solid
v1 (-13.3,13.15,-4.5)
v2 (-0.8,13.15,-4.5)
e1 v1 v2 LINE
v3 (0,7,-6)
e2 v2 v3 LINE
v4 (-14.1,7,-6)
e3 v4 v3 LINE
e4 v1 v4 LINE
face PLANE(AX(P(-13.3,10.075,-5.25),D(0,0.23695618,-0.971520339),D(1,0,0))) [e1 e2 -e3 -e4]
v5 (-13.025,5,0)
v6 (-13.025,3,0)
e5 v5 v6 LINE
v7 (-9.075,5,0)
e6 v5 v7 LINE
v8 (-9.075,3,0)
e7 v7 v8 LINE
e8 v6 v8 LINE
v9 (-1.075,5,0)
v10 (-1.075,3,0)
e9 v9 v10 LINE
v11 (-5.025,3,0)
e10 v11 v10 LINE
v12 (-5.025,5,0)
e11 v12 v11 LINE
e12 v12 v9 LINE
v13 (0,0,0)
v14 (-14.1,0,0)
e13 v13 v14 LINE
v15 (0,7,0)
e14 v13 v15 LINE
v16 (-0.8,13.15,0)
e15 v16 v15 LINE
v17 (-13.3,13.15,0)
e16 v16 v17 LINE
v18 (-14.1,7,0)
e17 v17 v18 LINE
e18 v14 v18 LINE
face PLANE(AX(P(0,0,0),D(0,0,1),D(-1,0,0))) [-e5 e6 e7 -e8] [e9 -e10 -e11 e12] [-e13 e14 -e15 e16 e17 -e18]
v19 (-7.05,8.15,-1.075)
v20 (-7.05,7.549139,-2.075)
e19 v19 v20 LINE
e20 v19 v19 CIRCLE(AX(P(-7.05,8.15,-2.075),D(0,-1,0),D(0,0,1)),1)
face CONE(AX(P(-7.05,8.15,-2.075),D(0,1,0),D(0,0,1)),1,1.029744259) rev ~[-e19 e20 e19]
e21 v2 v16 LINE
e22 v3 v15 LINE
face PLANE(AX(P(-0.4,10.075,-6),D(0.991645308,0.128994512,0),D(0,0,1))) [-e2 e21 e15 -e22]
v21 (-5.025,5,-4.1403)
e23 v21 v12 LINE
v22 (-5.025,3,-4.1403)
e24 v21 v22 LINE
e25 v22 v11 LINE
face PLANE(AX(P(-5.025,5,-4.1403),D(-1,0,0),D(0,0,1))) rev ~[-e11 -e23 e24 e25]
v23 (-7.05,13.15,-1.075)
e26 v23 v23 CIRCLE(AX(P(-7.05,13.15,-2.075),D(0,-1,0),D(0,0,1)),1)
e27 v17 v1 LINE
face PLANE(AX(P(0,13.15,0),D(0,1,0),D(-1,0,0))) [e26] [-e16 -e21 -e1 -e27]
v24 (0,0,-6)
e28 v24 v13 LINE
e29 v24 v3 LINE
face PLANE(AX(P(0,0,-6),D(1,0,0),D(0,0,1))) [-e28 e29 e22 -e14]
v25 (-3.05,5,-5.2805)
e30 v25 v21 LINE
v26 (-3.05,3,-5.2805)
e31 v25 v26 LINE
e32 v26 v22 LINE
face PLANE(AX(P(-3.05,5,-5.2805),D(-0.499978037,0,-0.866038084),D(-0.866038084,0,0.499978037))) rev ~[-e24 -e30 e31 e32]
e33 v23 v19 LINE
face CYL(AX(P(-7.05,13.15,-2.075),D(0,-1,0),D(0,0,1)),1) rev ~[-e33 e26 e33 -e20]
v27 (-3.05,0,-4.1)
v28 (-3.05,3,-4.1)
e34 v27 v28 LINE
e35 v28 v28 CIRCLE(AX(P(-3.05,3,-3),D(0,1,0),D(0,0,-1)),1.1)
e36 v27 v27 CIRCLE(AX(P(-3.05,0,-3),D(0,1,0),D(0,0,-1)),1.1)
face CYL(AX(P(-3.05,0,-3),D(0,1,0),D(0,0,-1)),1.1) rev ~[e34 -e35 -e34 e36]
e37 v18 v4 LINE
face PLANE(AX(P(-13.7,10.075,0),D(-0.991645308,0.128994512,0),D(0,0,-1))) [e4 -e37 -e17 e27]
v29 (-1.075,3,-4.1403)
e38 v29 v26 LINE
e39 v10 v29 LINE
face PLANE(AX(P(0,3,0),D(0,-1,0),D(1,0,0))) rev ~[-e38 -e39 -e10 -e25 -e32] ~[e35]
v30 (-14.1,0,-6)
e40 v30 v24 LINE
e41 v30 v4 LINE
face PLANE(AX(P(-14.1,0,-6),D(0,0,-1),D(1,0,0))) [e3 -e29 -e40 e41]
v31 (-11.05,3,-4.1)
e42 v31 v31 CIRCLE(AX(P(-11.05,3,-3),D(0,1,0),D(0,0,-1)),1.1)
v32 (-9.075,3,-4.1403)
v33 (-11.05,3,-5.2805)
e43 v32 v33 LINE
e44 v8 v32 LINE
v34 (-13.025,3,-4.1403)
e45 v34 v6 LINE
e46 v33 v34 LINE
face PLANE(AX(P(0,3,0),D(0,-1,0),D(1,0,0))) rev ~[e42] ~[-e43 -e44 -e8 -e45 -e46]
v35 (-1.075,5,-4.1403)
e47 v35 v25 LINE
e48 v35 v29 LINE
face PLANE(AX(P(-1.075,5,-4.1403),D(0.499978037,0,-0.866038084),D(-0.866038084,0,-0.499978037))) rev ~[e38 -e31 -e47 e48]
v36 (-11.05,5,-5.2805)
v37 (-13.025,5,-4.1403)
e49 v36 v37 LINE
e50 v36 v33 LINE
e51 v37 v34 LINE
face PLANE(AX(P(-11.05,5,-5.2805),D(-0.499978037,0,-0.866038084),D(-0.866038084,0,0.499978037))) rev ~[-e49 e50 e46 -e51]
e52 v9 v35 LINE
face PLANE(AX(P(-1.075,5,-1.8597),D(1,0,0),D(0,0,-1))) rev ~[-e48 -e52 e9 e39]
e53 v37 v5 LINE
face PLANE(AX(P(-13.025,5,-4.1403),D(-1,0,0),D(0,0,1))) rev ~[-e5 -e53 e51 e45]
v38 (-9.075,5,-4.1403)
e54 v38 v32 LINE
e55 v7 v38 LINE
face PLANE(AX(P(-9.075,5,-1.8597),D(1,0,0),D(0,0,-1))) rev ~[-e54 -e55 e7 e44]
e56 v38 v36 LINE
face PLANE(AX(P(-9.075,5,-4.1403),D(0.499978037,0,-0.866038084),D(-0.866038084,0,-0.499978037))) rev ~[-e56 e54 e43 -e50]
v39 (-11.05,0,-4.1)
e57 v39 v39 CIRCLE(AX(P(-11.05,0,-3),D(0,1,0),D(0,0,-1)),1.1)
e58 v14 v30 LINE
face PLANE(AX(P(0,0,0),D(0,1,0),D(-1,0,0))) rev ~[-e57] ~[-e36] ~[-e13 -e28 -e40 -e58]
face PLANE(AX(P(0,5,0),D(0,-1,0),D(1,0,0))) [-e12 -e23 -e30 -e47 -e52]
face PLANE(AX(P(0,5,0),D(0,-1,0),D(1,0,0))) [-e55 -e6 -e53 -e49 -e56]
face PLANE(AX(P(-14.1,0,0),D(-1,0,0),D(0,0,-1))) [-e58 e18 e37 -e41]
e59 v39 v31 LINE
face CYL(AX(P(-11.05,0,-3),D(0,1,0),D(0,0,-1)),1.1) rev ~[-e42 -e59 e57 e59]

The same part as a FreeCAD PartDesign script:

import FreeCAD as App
import Part
import Sketcher


def edges_at(feature, points):
    """Names of the edges that pass closest to the given points."""
    edges = feature.Shape.Edges
    near = lambda p: min(range(len(edges)), key=lambda i: edges[i].distToShape(Part.Vertex(*p))[0])
    return sorted({f"Edge{near(p) + 1}" for p in points})

doc = App.newDocument("Part")
params = doc.addObject("Spreadsheet::Sheet", "Params")
for row, (alias, value) in enumerate([
    ("sketch1_height", "6 mm"),
    ("sketch1_width", "14.1 mm"),
    ("pad1_length", "13.15 mm"),
    ("sketch2_diameter", "2 mm"),
    ("hole_diameter", "2 mm"),
    ("hole_depth", "5 mm"),
    ("sketch3_diameter", "2.2 mm"),
    ("hole2_diameter", "2.2 mm"),
    ("hole2_depth", "5 mm"),
    ("sketch4_width", "3.95 mm"),
    ("pocket1_length", "2 mm"),
    ("chamfer_size", "0.8 mm"),
    ("chamfer_size2", "6.15 mm"),
    ("chamfer2_size", "0.8 mm"),
    ("chamfer2_size2", "6.15 mm"),
    ("chamfer3_size", "1.5 mm"),
    ("chamfer3_size2", "6.15 mm"),
], start=1):
    params.set(f"A{row}", alias)
    params.set(f"B{row}", "=" + value)
    params.setAlias(f"B{row}", alias)

body = doc.addObject("PartDesign::Body", "Body")

# Sketch on XZ plane
sketch1 = body.newObject("Sketcher::SketchObject", "Sketch")
sketch1.AttachmentSupport = (doc.getObject("XZ_Plane"), [""])
sketch1.MapMode = "FlatFace"
sketch1.addGeometry([
    Part.LineSegment(App.Vector(-14.1, 0, 0), App.Vector(0, 0, 0)),
    Part.LineSegment(App.Vector(0, 0, 0), App.Vector(0, -6, 0)),
    Part.LineSegment(App.Vector(0, -6, 0), App.Vector(-14.1, -6, 0)),
    Part.LineSegment(App.Vector(-14.1, -6, 0), App.Vector(-14.1, 0, 0)),
], False)
sketch1.addConstraint([
    Sketcher.Constraint("Coincident", 0, 2, 1, 1),
    Sketcher.Constraint("Coincident", 1, 2, 2, 1),
    Sketcher.Constraint("Coincident", 2, 2, 3, 1),
    Sketcher.Constraint("Coincident", 3, 2, 0, 1),
    Sketcher.Constraint("Horizontal", 0),
    Sketcher.Constraint("Vertical", 1),
    Sketcher.Constraint("Horizontal", 2),
    Sketcher.Constraint("Vertical", 3),
    Sketcher.Constraint("Coincident", 0, 2, -1, 1),
    Sketcher.Constraint("DistanceY", 1, 2, 1, 1, 6.0),
    Sketcher.Constraint("DistanceX", 0, 1, 0, 2, 14.1),
])
sketch1.setExpression("Constraints[9]", "Params.sketch1_height")
sketch1.setExpression("Constraints[10]", "Params.sketch1_width")
pad1 = body.newObject("PartDesign::Pad", "Pad")
pad1.Profile = sketch1
pad1.setExpression("Length", "Params.pad1_length")
pad1.Reversed = True

# Sketch on XZ plane
sketch2 = body.newObject("Sketcher::SketchObject", "Sketch001")
sketch2.AttachmentSupport = (doc.getObject("XZ_Plane"), [""])
sketch2.MapMode = "FlatFace"
sketch2.AttachmentOffset = App.Placement(App.Vector(0, 0, -13.15), App.Rotation())
sketch2.addGeometry(Part.Circle(App.Vector(-7.05, -2.075, 0), App.Vector(0, 0, 1), 1), False)
sketch2.addConstraint([
    Sketcher.Constraint("Diameter", 0, 2.0),
    Sketcher.Constraint("DistanceX", 0, 3, -1, 1, 7.05),
    Sketcher.Constraint("DistanceY", 0, 3, -1, 1, 2.075),
])
sketch2.setExpression("Constraints[0]", "Params.sketch2_diameter")
doc.recompute()
hole = body.newObject("PartDesign::Hole", "Hole")
hole.Profile = sketch2
hole.ThreadType = "None"
hole.setExpression("Diameter", "Params.hole_diameter")
hole.DepthType = "Dimension"
hole.setExpression("Depth", "Params.hole_depth")
hole.DrillPoint = "Angled"
hole.DrillPointAngle = 118
hole.Reversed = True

# Sketch on XZ plane
sketch3 = body.newObject("Sketcher::SketchObject", "Sketch002")
sketch3.AttachmentSupport = (doc.getObject("XZ_Plane"), [""])
sketch3.MapMode = "FlatFace"
sketch3.addGeometry([
    Part.Circle(App.Vector(-3.05, -3, 0), App.Vector(0, 0, 1), 1.1),
    Part.Circle(App.Vector(-11.05, -3, 0), App.Vector(0, 0, 1), 1.1),
], False)
sketch3.addConstraint([
    Sketcher.Constraint("Equal", 0, 1),
    Sketcher.Constraint("Horizontal", 0, 3, 1, 3),
    Sketcher.Constraint("Diameter", 0, 2.2),
    Sketcher.Constraint("DistanceY", 0, 3, -1, 1, 3.0),
    Sketcher.Constraint("DistanceX", 1, 3, 0, 3, 8.0),
    Sketcher.Constraint("DistanceX", 0, 3, -1, 1, 3.05),
])
sketch3.setExpression("Constraints[2]", "Params.sketch3_diameter")
doc.recompute()
hole2 = body.newObject("PartDesign::Hole", "Hole001")
hole2.Profile = sketch3
hole2.ThreadType = "None"
hole2.setExpression("Diameter", "Params.hole2_diameter")
hole2.DepthType = "Dimension"
hole2.setExpression("Depth", "Params.hole2_depth")
hole2.DrillPoint = "Flat"

# Sketch on XZ plane
sketch4 = body.newObject("Sketcher::SketchObject", "Sketch003")
sketch4.AttachmentSupport = (doc.getObject("XZ_Plane"), [""])
sketch4.MapMode = "FlatFace"
sketch4.AttachmentOffset = App.Placement(App.Vector(0, 0, -5), App.Rotation())
sketch4.addGeometry([
    Part.LineSegment(App.Vector(-5.025, -4.1403, 0), App.Vector(-3.05, -5.2805, 0)),  # 0
    Part.LineSegment(App.Vector(-3.05, -5.2805, 0), App.Vector(-1.075, -4.1403, 0)),  # 1
    Part.LineSegment(App.Vector(-1.075, -4.1403, 0), App.Vector(-1.075, 0, 0)),  # 2
    Part.LineSegment(App.Vector(-1.075, 0, 0), App.Vector(-5.025, 0, 0)),  # 3
    Part.LineSegment(App.Vector(-5.025, 0, 0), App.Vector(-5.025, -4.1403, 0)),  # 4
    Part.LineSegment(App.Vector(-9.075, -4.1403, 0), App.Vector(-9.075, 0, 0)),  # 5
    Part.LineSegment(App.Vector(-9.075, 0, 0), App.Vector(-13.025, 0, 0)),  # 6
    Part.LineSegment(App.Vector(-13.025, 0, 0), App.Vector(-13.025, -4.1403, 0)),  # 7
    Part.LineSegment(App.Vector(-13.025, -4.1403, 0), App.Vector(-11.05, -5.2805, 0)),  # 8
    Part.LineSegment(App.Vector(-11.05, -5.2805, 0), App.Vector(-9.075, -4.1403, 0)),  # 9
], False)
sketch4.addConstraint([
    Sketcher.Constraint("Coincident", 0, 2, 1, 1),
    Sketcher.Constraint("Coincident", 1, 2, 2, 1),
    Sketcher.Constraint("Coincident", 2, 2, 3, 1),
    Sketcher.Constraint("Coincident", 3, 2, 4, 1),
    Sketcher.Constraint("Coincident", 4, 2, 0, 1),
    Sketcher.Constraint("Coincident", 5, 2, 6, 1),
    Sketcher.Constraint("Coincident", 6, 2, 7, 1),
    Sketcher.Constraint("Coincident", 7, 2, 8, 1),
    Sketcher.Constraint("Coincident", 8, 2, 9, 1),
    Sketcher.Constraint("Coincident", 9, 2, 5, 1),
    Sketcher.Constraint("Vertical", 2),
    Sketcher.Constraint("Horizontal", 3),
    Sketcher.Constraint("Vertical", 4),
    Sketcher.Constraint("Vertical", 5),
    Sketcher.Constraint("Horizontal", 6),
    Sketcher.Constraint("Vertical", 7),
    Sketcher.Constraint("PointOnObject", 2, 2, -1),
    Sketcher.Constraint("PointOnObject", 5, 2, -1),
    Sketcher.Constraint("Parallel", 0, 8),
    Sketcher.Constraint("Parallel", 1, 9),
    Sketcher.Constraint("Horizontal", 1, 2, 4, 2),
    Sketcher.Constraint("Horizontal", 4, 2, 7, 2),
    Sketcher.Constraint("Horizontal", 0, 2, 8, 2),
    Sketcher.Constraint("Horizontal", 7, 2, 9, 2),
    Sketcher.Constraint("Equal", 0, 1),
    Sketcher.Constraint("DistanceX", 3, 2, 3, 1, 3.95),
    Sketcher.Constraint("DistanceX", 5, 2, 2, 2, 8.0),
    Sketcher.Constraint("DistanceX", 0, 2, -1, 1, 3.05),
    Sketcher.Constraint("DistanceY", 2, 1, 2, 2, 4.1403),
    Sketcher.Constraint("Distance", 0, 2.2805),
])
sketch4.setExpression("Constraints[25]", "Params.sketch4_width")
pocket1 = body.newObject("PartDesign::Pocket", "Pocket")
pocket1.Profile = sketch4
pocket1.setExpression("Length", "Params.pocket1_length")
pocket1.Reversed = True
doc.recompute()

chamfer = body.newObject("PartDesign::Chamfer", "Chamfer")
chamfer.Base = (pocket1, edges_at(pocket1, [(-14.1, 13.15, -3)]))
chamfer.ChamferType = "Two distances"
chamfer.setExpression("Size", "Params.chamfer_size")
chamfer.setExpression("Size2", "Params.chamfer_size2")
chamfer.FlipDirection = True
doc.recompute()

chamfer2 = body.newObject("PartDesign::Chamfer", "Chamfer001")
chamfer2.Base = (chamfer, edges_at(chamfer, [(0, 13.15, -3)]))
chamfer2.ChamferType = "Two distances"
chamfer2.setExpression("Size", "Params.chamfer2_size")
chamfer2.setExpression("Size2", "Params.chamfer2_size2")
doc.recompute()

chamfer3 = body.newObject("PartDesign::Chamfer", "Chamfer002")
chamfer3.Base = (chamfer2, edges_at(chamfer2, [(-7.05, 13.15, -6)]))
chamfer3.ChamferType = "Two distances"
chamfer3.setExpression("Size", "Params.chamfer3_size")
chamfer3.setExpression("Size2", "Params.chamfer3_size2")

doc.recompute()
